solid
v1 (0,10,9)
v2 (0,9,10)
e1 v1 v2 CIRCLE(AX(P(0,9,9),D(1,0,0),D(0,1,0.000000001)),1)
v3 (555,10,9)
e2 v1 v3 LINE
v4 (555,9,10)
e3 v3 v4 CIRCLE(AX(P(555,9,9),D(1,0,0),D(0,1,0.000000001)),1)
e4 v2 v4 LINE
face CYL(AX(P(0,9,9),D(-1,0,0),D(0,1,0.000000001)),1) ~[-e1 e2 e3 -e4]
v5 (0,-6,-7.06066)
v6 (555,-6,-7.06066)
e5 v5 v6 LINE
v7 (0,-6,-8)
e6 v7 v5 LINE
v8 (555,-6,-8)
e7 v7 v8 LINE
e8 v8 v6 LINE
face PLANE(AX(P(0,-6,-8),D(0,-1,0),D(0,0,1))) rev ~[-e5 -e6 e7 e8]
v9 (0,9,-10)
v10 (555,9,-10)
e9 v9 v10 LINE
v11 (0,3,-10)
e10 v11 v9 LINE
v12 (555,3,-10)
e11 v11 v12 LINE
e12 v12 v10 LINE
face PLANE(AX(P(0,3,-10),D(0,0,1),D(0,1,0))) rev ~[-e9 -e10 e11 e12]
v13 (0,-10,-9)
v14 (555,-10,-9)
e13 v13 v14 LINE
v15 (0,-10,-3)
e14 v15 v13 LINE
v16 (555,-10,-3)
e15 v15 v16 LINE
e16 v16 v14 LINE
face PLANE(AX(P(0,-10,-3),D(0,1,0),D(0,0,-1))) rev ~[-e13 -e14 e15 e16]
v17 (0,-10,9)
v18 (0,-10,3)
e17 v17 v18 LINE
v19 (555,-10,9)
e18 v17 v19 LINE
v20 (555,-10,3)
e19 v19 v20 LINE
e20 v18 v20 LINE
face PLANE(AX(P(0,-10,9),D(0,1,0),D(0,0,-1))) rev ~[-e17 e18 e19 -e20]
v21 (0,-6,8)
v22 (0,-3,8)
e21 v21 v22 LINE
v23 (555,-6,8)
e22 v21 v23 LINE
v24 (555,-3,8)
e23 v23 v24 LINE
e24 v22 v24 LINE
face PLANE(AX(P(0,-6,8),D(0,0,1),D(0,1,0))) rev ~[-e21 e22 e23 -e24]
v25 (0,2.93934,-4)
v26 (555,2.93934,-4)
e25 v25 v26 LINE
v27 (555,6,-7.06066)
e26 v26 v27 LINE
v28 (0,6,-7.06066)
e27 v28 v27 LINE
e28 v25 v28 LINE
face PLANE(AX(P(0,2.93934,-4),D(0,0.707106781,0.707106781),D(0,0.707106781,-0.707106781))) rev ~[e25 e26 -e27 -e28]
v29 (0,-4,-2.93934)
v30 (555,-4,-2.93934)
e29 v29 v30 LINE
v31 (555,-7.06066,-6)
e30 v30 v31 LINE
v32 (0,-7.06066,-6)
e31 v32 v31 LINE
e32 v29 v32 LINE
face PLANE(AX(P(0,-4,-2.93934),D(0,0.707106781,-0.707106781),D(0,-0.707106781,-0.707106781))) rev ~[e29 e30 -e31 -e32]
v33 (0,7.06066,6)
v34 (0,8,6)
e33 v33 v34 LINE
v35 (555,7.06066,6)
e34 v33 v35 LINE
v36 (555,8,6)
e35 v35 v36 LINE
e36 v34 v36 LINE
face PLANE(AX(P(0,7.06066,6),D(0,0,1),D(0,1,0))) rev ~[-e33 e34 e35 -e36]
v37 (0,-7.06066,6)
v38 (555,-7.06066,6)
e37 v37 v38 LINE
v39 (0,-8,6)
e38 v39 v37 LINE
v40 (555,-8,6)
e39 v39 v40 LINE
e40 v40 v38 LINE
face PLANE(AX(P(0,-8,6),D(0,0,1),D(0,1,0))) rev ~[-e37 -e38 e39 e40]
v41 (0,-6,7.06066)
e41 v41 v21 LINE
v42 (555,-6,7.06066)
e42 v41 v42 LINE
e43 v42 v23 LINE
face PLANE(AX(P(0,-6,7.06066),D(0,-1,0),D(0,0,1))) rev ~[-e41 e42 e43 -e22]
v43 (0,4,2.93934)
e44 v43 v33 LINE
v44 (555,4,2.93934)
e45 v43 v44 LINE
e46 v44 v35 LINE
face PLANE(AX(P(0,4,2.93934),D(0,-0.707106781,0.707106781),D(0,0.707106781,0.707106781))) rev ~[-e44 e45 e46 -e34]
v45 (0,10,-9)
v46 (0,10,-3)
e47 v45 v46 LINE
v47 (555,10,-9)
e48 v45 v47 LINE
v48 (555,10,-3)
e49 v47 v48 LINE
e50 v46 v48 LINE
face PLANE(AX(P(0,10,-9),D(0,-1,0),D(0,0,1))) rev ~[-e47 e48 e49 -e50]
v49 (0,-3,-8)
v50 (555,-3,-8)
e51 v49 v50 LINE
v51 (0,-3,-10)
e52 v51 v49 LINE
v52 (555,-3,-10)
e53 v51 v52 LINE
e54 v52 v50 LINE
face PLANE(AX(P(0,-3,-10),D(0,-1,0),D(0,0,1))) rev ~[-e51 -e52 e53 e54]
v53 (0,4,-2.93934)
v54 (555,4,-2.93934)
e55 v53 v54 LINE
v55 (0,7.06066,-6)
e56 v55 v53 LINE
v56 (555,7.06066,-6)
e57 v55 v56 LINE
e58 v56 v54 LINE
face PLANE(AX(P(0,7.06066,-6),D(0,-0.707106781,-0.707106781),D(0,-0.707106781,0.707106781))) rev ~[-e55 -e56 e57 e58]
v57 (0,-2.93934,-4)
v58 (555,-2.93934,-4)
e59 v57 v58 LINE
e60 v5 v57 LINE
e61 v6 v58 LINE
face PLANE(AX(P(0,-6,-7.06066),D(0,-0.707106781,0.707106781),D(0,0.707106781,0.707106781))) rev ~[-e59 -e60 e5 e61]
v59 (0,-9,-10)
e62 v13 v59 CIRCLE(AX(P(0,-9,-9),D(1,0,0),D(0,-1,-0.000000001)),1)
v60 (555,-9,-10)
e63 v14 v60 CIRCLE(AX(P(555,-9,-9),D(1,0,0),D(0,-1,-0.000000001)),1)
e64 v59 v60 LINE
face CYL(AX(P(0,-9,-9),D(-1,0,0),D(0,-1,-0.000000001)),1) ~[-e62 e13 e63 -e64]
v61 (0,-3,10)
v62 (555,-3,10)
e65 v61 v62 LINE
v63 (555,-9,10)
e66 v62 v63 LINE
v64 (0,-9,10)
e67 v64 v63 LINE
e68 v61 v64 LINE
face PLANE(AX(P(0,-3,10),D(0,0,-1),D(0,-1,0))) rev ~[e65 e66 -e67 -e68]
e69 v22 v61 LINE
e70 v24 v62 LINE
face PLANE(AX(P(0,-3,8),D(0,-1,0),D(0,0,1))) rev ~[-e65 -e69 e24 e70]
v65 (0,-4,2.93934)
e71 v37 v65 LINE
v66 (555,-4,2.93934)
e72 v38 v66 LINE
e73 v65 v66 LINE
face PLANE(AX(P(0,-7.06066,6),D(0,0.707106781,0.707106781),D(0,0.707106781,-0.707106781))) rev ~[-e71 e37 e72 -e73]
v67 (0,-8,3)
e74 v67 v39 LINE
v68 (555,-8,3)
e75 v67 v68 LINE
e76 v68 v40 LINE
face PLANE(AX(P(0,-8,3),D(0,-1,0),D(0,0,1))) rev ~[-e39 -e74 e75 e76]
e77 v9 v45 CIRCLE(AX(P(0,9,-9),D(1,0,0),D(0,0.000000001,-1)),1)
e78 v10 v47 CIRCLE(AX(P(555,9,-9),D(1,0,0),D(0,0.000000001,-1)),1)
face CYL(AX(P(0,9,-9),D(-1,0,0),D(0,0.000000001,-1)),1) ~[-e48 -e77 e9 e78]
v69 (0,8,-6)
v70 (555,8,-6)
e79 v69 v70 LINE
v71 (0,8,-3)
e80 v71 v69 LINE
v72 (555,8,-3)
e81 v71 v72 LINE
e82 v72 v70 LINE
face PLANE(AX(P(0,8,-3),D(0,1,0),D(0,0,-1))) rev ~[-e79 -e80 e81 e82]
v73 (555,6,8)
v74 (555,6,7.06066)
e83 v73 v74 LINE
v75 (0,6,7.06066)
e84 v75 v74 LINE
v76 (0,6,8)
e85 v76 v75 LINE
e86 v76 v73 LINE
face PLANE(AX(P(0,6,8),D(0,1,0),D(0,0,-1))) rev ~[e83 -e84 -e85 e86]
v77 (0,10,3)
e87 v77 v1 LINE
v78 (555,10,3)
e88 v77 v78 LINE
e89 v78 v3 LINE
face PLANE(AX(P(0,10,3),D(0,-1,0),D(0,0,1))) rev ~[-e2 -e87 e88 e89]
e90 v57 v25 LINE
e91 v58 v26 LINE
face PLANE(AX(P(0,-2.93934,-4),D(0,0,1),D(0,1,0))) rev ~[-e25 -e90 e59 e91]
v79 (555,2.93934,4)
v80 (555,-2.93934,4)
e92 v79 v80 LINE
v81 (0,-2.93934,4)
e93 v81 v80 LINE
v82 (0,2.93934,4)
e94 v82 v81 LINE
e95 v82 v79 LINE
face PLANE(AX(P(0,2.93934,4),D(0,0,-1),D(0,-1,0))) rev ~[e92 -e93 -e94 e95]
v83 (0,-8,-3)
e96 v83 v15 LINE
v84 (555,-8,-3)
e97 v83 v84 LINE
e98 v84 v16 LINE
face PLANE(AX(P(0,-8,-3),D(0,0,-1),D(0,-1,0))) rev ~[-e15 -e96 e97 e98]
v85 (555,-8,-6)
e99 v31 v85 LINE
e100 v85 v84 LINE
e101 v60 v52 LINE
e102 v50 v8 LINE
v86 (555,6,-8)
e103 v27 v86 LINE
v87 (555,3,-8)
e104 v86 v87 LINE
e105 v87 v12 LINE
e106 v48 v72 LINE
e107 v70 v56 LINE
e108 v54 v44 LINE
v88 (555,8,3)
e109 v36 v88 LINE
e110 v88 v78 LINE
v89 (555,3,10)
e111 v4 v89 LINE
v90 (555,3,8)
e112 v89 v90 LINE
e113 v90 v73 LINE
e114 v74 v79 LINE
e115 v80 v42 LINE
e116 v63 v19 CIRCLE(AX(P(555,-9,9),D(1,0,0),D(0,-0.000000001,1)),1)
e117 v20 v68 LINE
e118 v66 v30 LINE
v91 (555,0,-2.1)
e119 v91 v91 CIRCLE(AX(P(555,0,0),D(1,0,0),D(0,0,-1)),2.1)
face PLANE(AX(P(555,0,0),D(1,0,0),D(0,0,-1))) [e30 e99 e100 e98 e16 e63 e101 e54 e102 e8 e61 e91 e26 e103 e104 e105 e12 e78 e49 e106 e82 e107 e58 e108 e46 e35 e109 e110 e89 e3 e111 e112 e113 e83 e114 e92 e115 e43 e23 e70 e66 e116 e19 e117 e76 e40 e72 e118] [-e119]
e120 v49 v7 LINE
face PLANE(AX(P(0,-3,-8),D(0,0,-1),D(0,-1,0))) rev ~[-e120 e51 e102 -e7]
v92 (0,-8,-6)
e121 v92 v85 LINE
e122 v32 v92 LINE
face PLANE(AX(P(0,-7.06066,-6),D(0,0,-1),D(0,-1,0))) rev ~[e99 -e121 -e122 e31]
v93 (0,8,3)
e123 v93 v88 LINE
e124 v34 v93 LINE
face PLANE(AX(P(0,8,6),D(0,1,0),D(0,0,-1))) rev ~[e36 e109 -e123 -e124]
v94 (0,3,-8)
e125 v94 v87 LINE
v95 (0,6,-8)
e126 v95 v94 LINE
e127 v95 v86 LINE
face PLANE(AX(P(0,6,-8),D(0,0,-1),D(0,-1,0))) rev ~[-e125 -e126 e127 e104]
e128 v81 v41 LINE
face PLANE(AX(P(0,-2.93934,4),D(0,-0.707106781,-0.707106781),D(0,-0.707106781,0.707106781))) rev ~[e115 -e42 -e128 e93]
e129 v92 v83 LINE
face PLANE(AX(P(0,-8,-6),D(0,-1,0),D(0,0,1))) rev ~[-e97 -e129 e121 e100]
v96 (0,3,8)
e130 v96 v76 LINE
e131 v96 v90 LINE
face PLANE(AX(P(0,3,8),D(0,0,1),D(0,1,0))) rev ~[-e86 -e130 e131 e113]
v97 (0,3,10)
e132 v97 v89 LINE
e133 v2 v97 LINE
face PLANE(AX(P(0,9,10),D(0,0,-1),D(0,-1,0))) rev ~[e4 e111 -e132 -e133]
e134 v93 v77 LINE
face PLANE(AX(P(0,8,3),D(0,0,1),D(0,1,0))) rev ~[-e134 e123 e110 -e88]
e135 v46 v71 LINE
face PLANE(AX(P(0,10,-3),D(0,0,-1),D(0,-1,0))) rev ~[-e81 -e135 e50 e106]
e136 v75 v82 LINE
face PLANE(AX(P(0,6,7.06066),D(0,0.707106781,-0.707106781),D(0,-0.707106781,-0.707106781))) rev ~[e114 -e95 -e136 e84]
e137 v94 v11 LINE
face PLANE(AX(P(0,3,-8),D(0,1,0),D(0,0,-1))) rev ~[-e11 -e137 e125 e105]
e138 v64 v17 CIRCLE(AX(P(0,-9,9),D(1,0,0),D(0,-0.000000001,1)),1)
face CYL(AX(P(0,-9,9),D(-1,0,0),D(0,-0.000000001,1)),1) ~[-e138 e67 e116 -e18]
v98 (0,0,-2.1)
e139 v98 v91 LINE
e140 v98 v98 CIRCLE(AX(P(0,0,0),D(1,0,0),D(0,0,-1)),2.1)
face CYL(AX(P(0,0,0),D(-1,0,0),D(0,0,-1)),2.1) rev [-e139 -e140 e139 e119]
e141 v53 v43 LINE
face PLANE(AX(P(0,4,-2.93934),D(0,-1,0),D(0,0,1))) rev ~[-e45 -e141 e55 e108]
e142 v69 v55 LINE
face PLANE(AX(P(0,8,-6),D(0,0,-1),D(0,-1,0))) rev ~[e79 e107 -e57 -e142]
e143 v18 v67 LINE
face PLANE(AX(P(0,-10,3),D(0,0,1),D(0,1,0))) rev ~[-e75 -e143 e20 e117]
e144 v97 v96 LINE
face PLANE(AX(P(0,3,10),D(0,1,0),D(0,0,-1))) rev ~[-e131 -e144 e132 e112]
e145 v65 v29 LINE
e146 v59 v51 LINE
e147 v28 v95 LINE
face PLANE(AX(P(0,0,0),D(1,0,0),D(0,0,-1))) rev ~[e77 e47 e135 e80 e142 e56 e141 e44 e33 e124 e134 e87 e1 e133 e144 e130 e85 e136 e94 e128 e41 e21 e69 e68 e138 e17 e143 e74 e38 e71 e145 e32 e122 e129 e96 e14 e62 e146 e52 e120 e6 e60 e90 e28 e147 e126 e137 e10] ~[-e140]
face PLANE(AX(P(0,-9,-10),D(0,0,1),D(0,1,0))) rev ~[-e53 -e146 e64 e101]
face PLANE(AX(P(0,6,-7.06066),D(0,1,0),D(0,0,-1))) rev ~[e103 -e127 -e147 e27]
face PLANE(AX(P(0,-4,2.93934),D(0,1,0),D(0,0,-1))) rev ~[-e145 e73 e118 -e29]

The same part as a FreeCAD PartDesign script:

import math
import FreeCAD as App
import Part
import Sketcher

V = App.Vector
Q = App.Units.Quantity

doc = App.newDocument("Part")
body = doc.addObject("PartDesign::Body", "Body")

# Sketch on YZ plane
sketch1 = body.newObject("Sketcher::SketchObject", "Sketch")
sketch1.AttachmentSupport = (doc.getObject("YZ_Plane"), [""])
sketch1.MapMode = "FlatFace"
sketch1.addGeometry(Part.LineSegment(V(9, 10, 0), V(3, 10, 0)), False)
sketch1.addGeometry(Part.LineSegment(V(3, 10, 0), V(3, 8, 0)), False)
sketch1.addGeometry(Part.LineSegment(V(3, 8, 0), V(6, 8, 0)), False)
sketch1.addGeometry(Part.LineSegment(V(6, 8, 0), V(6, 7.1, 0)), False)
sketch1.addGeometry(Part.LineSegment(V(6, 7.1, 0), V(2.9, 4, 0)), False)
sketch1.addGeometry(Part.LineSegment(V(2.9, 4, 0), V(-2.9, 4, 0)), False)
sketch1.addGeometry(Part.LineSegment(V(-2.9, 4, 0), V(-6, 7.1, 0)), False)
sketch1.addGeometry(Part.LineSegment(V(-6, 7.1, 0), V(-6, 8, 0)), False)
sketch1.addGeometry(Part.LineSegment(V(-6, 8, 0), V(-3, 8, 0)), False)
sketch1.addGeometry(Part.LineSegment(V(-3, 8, 0), V(-3, 10, 0)), False)
sketch1.addGeometry(Part.LineSegment(V(-3, 10, 0), V(-9, 10, 0)), False)
sketch1.addGeometry(Part.ArcOfCircle(Part.Circle(V(-9, 9, 0), V(0, 0, 1), 1), math.radians(90), math.radians(180)), False)
sketch1.addGeometry(Part.LineSegment(V(-10, 9, 0), V(-10, 3, 0)), False)
sketch1.addGeometry(Part.LineSegment(V(-10, 3, 0), V(-8, 3, 0)), False)
sketch1.addGeometry(Part.LineSegment(V(-8, 3, 0), V(-8, 6, 0)), False)
sketch1.addGeometry(Part.LineSegment(V(-8, 6, 0), V(-7.1, 6, 0)), False)
sketch1.addGeometry(Part.LineSegment(V(-7.1, 6, 0), V(-4, 2.9, 0)), False)
sketch1.addGeometry(Part.LineSegment(V(-4, 2.9, 0), V(-4, -2.9, 0)), False)
sketch1.addGeometry(Part.LineSegment(V(-4, -2.9, 0), V(-7.1, -6, 0)), False)
sketch1.addGeometry(Part.LineSegment(V(-7.1, -6, 0), V(-8, -6, 0)), False)
sketch1.addGeometry(Part.LineSegment(V(-8, -6, 0), V(-8, -3, 0)), False)
sketch1.addGeometry(Part.LineSegment(V(-8, -3, 0), V(-10, -3, 0)), False)
sketch1.addGeometry(Part.LineSegment(V(-10, -3, 0), V(-10, -9, 0)), False)
sketch1.addGeometry(Part.ArcOfCircle(Part.Circle(V(-9, -9, 0), V(0, 0, 1), 1), math.radians(-180), math.radians(-90)), False)
sketch1.addGeometry(Part.LineSegment(V(-9, -10, 0), V(-3, -10, 0)), False)
sketch1.addGeometry(Part.LineSegment(V(-3, -10, 0), V(-3, -8, 0)), False)
sketch1.addGeometry(Part.LineSegment(V(-3, -8, 0), V(-6, -8, 0)), False)
sketch1.addGeometry(Part.LineSegment(V(-6, -8, 0), V(-6, -7.1, 0)), False)
sketch1.addGeometry(Part.LineSegment(V(-6, -7.1, 0), V(-2.9, -4, 0)), False)
sketch1.addGeometry(Part.LineSegment(V(-2.9, -4, 0), V(2.9, -4, 0)), False)
sketch1.addGeometry(Part.LineSegment(V(2.9, -4, 0), V(6, -7.1, 0)), False)
sketch1.addGeometry(Part.LineSegment(V(6, -7.1, 0), V(6, -8, 0)), False)
sketch1.addGeometry(Part.LineSegment(V(6, -8, 0), V(3, -8, 0)), False)
sketch1.addGeometry(Part.LineSegment(V(3, -8, 0), V(3, -10, 0)), False)
sketch1.addGeometry(Part.LineSegment(V(3, -10, 0), V(9, -10, 0)), False)
sketch1.addGeometry(Part.ArcOfCircle(Part.Circle(V(9, -9, 0), V(0, 0, 1), 1), math.radians(-90), math.radians(0)), False)
sketch1.addGeometry(Part.LineSegment(V(10, -9, 0), V(10, -3, 0)), False)
sketch1.addGeometry(Part.LineSegment(V(10, -3, 0), V(8, -3, 0)), False)
sketch1.addGeometry(Part.LineSegment(V(8, -3, 0), V(8, -6, 0)), False)
sketch1.addGeometry(Part.LineSegment(V(8, -6, 0), V(7.1, -6, 0)), False)
sketch1.addGeometry(Part.LineSegment(V(7.1, -6, 0), V(4, -2.9, 0)), False)
sketch1.addGeometry(Part.LineSegment(V(4, -2.9, 0), V(4, 2.9, 0)), False)
sketch1.addGeometry(Part.LineSegment(V(4, 2.9, 0), V(7.1, 6, 0)), False)
sketch1.addGeometry(Part.LineSegment(V(7.1, 6, 0), V(8, 6, 0)), False)
sketch1.addGeometry(Part.LineSegment(V(8, 6, 0), V(8, 3, 0)), False)
sketch1.addGeometry(Part.LineSegment(V(8, 3, 0), V(10, 3, 0)), False)
sketch1.addGeometry(Part.LineSegment(V(10, 3, 0), V(10, 9, 0)), False)
sketch1.addGeometry(Part.ArcOfCircle(Part.Circle(V(9, 9, 0), V(0, 0, 1), 1), math.radians(0), math.radians(90)), False)
sketch1.addGeometry(Part.Circle(V(0, 0, 0), V(0, 0, 1), 2.1), False)
sketch1.addConstraint(Sketcher.Constraint("Coincident", 0, 2, 1, 1))
sketch1.addConstraint(Sketcher.Constraint("Coincident", 1, 2, 2, 1))
sketch1.addConstraint(Sketcher.Constraint("Coincident", 2, 2, 3, 1))
sketch1.addConstraint(Sketcher.Constraint("Coincident", 3, 2, 4, 1))
sketch1.addConstraint(Sketcher.Constraint("Coincident", 4, 2, 5, 1))
sketch1.addConstraint(Sketcher.Constraint("Coincident", 5, 2, 6, 1))
sketch1.addConstraint(Sketcher.Constraint("Coincident", 6, 2, 7, 1))
sketch1.addConstraint(Sketcher.Constraint("Coincident", 7, 2, 8, 1))
sketch1.addConstraint(Sketcher.Constraint("Coincident", 8, 2, 9, 1))
sketch1.addConstraint(Sketcher.Constraint("Coincident", 9, 2, 10, 1))
sketch1.addConstraint(Sketcher.Constraint("Tangent", 10, 2, 11, 1))
sketch1.addConstraint(Sketcher.Constraint("Tangent", 11, 2, 12, 1))
sketch1.addConstraint(Sketcher.Constraint("Coincident", 12, 2, 13, 1))
sketch1.addConstraint(Sketcher.Constraint("Coincident", 13, 2, 14, 1))
sketch1.addConstraint(Sketcher.Constraint("Coincident", 14, 2, 15, 1))
sketch1.addConstraint(Sketcher.Constraint("Coincident", 15, 2, 16, 1))
sketch1.addConstraint(Sketcher.Constraint("Coincident", 16, 2, 17, 1))
sketch1.addConstraint(Sketcher.Constraint("Coincident", 17, 2, 18, 1))
sketch1.addConstraint(Sketcher.Constraint("Coincident", 18, 2, 19, 1))
sketch1.addConstraint(Sketcher.Constraint("Coincident", 19, 2, 20, 1))
sketch1.addConstraint(Sketcher.Constraint("Coincident", 20, 2, 21, 1))
sketch1.addConstraint(Sketcher.Constraint("Coincident", 21, 2, 22, 1))
sketch1.addConstraint(Sketcher.Constraint("Tangent", 22, 2, 23, 1))
sketch1.addConstraint(Sketcher.Constraint("Tangent", 23, 2, 24, 1))
sketch1.addConstraint(Sketcher.Constraint("Coincident", 24, 2, 25, 1))
sketch1.addConstraint(Sketcher.Constraint("Coincident", 25, 2, 26, 1))
sketch1.addConstraint(Sketcher.Constraint("Coincident", 26, 2, 27, 1))
sketch1.addConstraint(Sketcher.Constraint("Coincident", 27, 2, 28, 1))
sketch1.addConstraint(Sketcher.Constraint("Coincident", 28, 2, 29, 1))
sketch1.addConstraint(Sketcher.Constraint("Coincident", 29, 2, 30, 1))
sketch1.addConstraint(Sketcher.Constraint("Coincident", 30, 2, 31, 1))
sketch1.addConstraint(Sketcher.Constraint("Coincident", 31, 2, 32, 1))
sketch1.addConstraint(Sketcher.Constraint("Coincident", 32, 2, 33, 1))
sketch1.addConstraint(Sketcher.Constraint("Coincident", 33, 2, 34, 1))
sketch1.addConstraint(Sketcher.Constraint("Tangent", 34, 2, 35, 1))
sketch1.addConstraint(Sketcher.Constraint("Tangent", 35, 2, 36, 1))
sketch1.addConstraint(Sketcher.Constraint("Coincident", 36, 2, 37, 1))
sketch1.addConstraint(Sketcher.Constraint("Coincident", 37, 2, 38, 1))
sketch1.addConstraint(Sketcher.Constraint("Coincident", 38, 2, 39, 1))
sketch1.addConstraint(Sketcher.Constraint("Coincident", 39, 2, 40, 1))
sketch1.addConstraint(Sketcher.Constraint("Coincident", 40, 2, 41, 1))
sketch1.addConstraint(Sketcher.Constraint("Coincident", 41, 2, 42, 1))
sketch1.addConstraint(Sketcher.Constraint("Coincident", 42, 2, 43, 1))
sketch1.addConstraint(Sketcher.Constraint("Coincident", 43, 2, 44, 1))
sketch1.addConstraint(Sketcher.Constraint("Coincident", 44, 2, 45, 1))
sketch1.addConstraint(Sketcher.Constraint("Coincident", 45, 2, 46, 1))
sketch1.addConstraint(Sketcher.Constraint("Tangent", 46, 2, 47, 1))
sketch1.addConstraint(Sketcher.Constraint("Tangent", 47, 2, 0, 1))
sketch1.addConstraint(Sketcher.Constraint("Horizontal", 0))
sketch1.addConstraint(Sketcher.Constraint("Vertical", 1))
sketch1.addConstraint(Sketcher.Constraint("Horizontal", 2))
sketch1.addConstraint(Sketcher.Constraint("Vertical", 3))
sketch1.addConstraint(Sketcher.Constraint("Horizontal", 5))
sketch1.addConstraint(Sketcher.Constraint("Vertical", 7))
sketch1.addConstraint(Sketcher.Constraint("Horizontal", 8))
sketch1.addConstraint(Sketcher.Constraint("Vertical", 9))
sketch1.addConstraint(Sketcher.Constraint("Horizontal", 10))
sketch1.addConstraint(Sketcher.Constraint("Vertical", 12))
sketch1.addConstraint(Sketcher.Constraint("Horizontal", 13))
sketch1.addConstraint(Sketcher.Constraint("Vertical", 14))
sketch1.addConstraint(Sketcher.Constraint("Horizontal", 15))
sketch1.addConstraint(Sketcher.Constraint("Vertical", 17))
sketch1.addConstraint(Sketcher.Constraint("Horizontal", 19))
sketch1.addConstraint(Sketcher.Constraint("Vertical", 20))
sketch1.addConstraint(Sketcher.Constraint("Horizontal", 21))
sketch1.addConstraint(Sketcher.Constraint("Vertical", 22))
sketch1.addConstraint(Sketcher.Constraint("Horizontal", 24))
sketch1.addConstraint(Sketcher.Constraint("Vertical", 25))
sketch1.addConstraint(Sketcher.Constraint("Horizontal", 26))
sketch1.addConstraint(Sketcher.Constraint("Vertical", 27))
sketch1.addConstraint(Sketcher.Constraint("Horizontal", 29))
sketch1.addConstraint(Sketcher.Constraint("Vertical", 31))
sketch1.addConstraint(Sketcher.Constraint("Horizontal", 32))
sketch1.addConstraint(Sketcher.Constraint("Vertical", 33))
sketch1.addConstraint(Sketcher.Constraint("Horizontal", 34))
sketch1.addConstraint(Sketcher.Constraint("Vertical", 36))
sketch1.addConstraint(Sketcher.Constraint("Horizontal", 37))
sketch1.addConstraint(Sketcher.Constraint("Vertical", 38))
sketch1.addConstraint(Sketcher.Constraint("Horizontal", 39))
sketch1.addConstraint(Sketcher.Constraint("Vertical", 41))
sketch1.addConstraint(Sketcher.Constraint("Horizontal", 43))
sketch1.addConstraint(Sketcher.Constraint("Vertical", 44))
sketch1.addConstraint(Sketcher.Constraint("Horizontal", 45))
sketch1.addConstraint(Sketcher.Constraint("Vertical", 46))
sketch1.addConstraint(Sketcher.Constraint("Coincident", 48, 3, -1, 1))
sketch1.addConstraint(Sketcher.Constraint("Equal", 11, 23))
sketch1.addConstraint(Sketcher.Constraint("Equal", 23, 35))
sketch1.addConstraint(Sketcher.Constraint("Equal", 35, 47))
sketch1.addConstraint(Sketcher.Constraint("Symmetric", 11, 3, 35, 3, -1, 1))
sketch1.addConstraint(Sketcher.Constraint("Symmetric", 23, 3, 47, 3, -1, 1))
sketch1.addConstraint(Sketcher.Constraint("Symmetric", 1, 2, 25, 2, -1, 1))
sketch1.addConstraint(Sketcher.Constraint("Symmetric", 3, 2, 27, 2, -1, 1))
sketch1.addConstraint(Sketcher.Constraint("Symmetric", 4, 2, 28, 2, -1, 1))
sketch1.addConstraint(Sketcher.Constraint("Symmetric", 6, 2, 30, 2, -1, 1))
sketch1.addConstraint(Sketcher.Constraint("Symmetric", 8, 2, 32, 2, -1, 1))
sketch1.addConstraint(Sketcher.Constraint("Symmetric", 13, 2, 37, 2, -1, 1))
sketch1.addConstraint(Sketcher.Constraint("Symmetric", 15, 2, 39, 2, -1, 1))
sketch1.addConstraint(Sketcher.Constraint("Symmetric", 16, 2, 40, 2, -1, 1))
sketch1.addConstraint(Sketcher.Constraint("Symmetric", 18, 2, 42, 2, -1, 1))
sketch1.addConstraint(Sketcher.Constraint("Symmetric", 20, 2, 44, 2, -1, 1))
sketch1.addConstraint(Sketcher.Constraint("Symmetric", 23, 3, 35, 3, -2))
sketch1.addConstraint(Sketcher.Constraint("Symmetric", 3, 2, 6, 2, -2))
sketch1.addConstraint(Sketcher.Constraint("Symmetric", 1, 2, 8, 2, -2))
sketch1.addConstraint(Sketcher.Constraint("Symmetric", 20, 2, 37, 2, -2))
sketch1.addConstraint(Sketcher.Constraint("Symmetric", 18, 2, 39, 2, -2))
sketch1.addConstraint(Sketcher.Constraint("Perpendicular", 4, 6))
sketch1.addConstraint(Sketcher.Constraint("Parallel", 6, 16))
sketch1.addConstraint(Sketcher.Constraint("Perpendicular", 16, 18))
sketch1.addConstraint(Sketcher.Constraint("Perpendicular", 28, 30))
sketch1.addConstraint(Sketcher.Constraint("Perpendicular", 40, 42))
sketch1.addConstraint(Sketcher.Constraint("Horizontal", 17, 2, 40, 2))
sketch1.addConstraint(Sketcher.Constraint("Equal", 45, 1))
sketch1.addConstraint(Sketcher.Constraint("Equal", 43, 3))
sketch1.addConstraint(Sketcher.Constraint("Equal", 34, 12))
sketch1.addConstraint(Sketcher.Constraint("Equal", 32, 14))
sketch1.addConstraint(Sketcher.Constraint("Equal", 29, 17))
sketch1.addConstraint(Sketcher.Constraint("Equal", 6, 16))
sketch1.addConstraint(Sketcher.Constraint("Radius", 11, Q("1 mm")))
sketch1.addConstraint(Sketcher.Constraint("Diameter", 48, Q("4.2 mm")))
sketch1.addConstraint(Sketcher.Constraint("DistanceX", 0, 2, 0, 1, Q("6 mm")))
sketch1.addConstraint(Sketcher.Constraint("DistanceX", 2, 1, 2, 2, Q("3 mm")))
sketch1.addConstraint(Sketcher.Constraint("DistanceX", 13, 1, 13, 2, Q("2 mm")))
sketch1.addConstraint(Sketcher.Constraint("DistanceX", 11, 3, -1, 1, Q("9 mm")))
sketch1.addConstraint(Sketcher.Constraint("DistanceY", -1, 1, 4, 2, Q("4 mm")))
sketch1.addConstraint(Sketcher.Constraint("DistanceX", 5, 2, 5, 1, Q("5.87868 mm")))
pad1 = body.newObject("PartDesign::Pad", "Pad")
pad1.Profile = sketch1
pad1.Length = 555

doc.recompute()
